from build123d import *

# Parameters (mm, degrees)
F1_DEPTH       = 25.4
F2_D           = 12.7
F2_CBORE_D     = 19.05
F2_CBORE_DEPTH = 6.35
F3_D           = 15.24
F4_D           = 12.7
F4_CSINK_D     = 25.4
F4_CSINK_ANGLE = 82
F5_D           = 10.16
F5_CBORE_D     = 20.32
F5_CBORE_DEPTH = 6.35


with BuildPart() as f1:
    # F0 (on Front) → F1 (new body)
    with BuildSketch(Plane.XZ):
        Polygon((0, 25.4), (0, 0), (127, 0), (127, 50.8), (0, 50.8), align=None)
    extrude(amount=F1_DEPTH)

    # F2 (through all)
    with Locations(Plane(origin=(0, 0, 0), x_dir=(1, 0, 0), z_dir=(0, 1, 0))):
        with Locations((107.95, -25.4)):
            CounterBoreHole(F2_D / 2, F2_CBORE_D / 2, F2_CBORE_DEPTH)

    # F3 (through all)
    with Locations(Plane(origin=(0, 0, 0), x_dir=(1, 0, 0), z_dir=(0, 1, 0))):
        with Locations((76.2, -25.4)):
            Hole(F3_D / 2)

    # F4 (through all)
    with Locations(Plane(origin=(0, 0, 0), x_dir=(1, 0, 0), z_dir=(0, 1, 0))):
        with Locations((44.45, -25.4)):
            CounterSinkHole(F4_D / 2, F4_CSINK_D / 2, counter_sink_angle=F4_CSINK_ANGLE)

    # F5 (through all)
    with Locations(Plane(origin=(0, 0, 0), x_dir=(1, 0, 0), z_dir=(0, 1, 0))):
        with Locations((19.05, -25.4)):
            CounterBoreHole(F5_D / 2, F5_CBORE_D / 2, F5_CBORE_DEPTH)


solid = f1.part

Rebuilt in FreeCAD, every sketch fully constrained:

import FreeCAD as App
import Part
import Sketcher

V = App.Vector
Q = App.Units.Quantity


def add_polygon(sketch, points):
    """Adds a closed chain of lines whose ends are joined by coincident constraints."""
    first, n = sketch.GeometryCount, len(points)
    for a, b in zip(points, points[1:] + points[:1]):
        sketch.addGeometry(Part.LineSegment(App.Vector(*a, 0), App.Vector(*b, 0)), False)
    for i in range(n):
        sketch.addConstraint(Sketcher.Constraint("Coincident", first + i, 2, first + (i + 1) % n, 1))

doc = App.newDocument("Part")
body = doc.addObject("PartDesign::Body", "Body")

# Sketch on XZ plane
sketch1 = body.newObject("Sketcher::SketchObject", "Sketch")
sketch1.AttachmentSupport = (doc.getObject("XZ_Plane"), [""])
sketch1.MapMode = "FlatFace"
add_polygon(sketch1, [(0, 0), (127, 0), (127, 50.8), (0, 50.8)])  # lines 0-3
sketch1.addConstraint([
    Sketcher.Constraint("Horizontal", 0),
    Sketcher.Constraint("Vertical", 1),
    Sketcher.Constraint("Horizontal", 2),
    Sketcher.Constraint("Vertical", 3),
    Sketcher.Constraint("Coincident", 3, 2, -1, 1),
    Sketcher.Constraint("DistanceX", 0, 1, 0, 2, Q("5 in")),
    Sketcher.Constraint("DistanceY", 1, 1, 1, 2, Q("2 in")),
])
pad1 = body.newObject("PartDesign::Pad", "Pad")
pad1.Profile = sketch1
pad1.Length = Q("1 in")

# Sketch on XZ plane
sketch2 = body.newObject("Sketcher::SketchObject", "Sketch001")
sketch2.AttachmentSupport = (doc.getObject("XZ_Plane"), [""])
sketch2.MapMode = "FlatFace"
sketch2.addGeometry(Part.Circle(V(107.95, 25.4, 0), V(0, 0, 1), 6.35), False)
sketch2.addConstraint([
    Sketcher.Constraint("Diameter", 0, Q("0.5 in")),
    Sketcher.Constraint("DistanceY", -1, 1, 0, 3, Q("1 in")),
    Sketcher.Constraint("DistanceX", -1, 1, 0, 3, Q("4.25 in")),
])
doc.recompute()
hole = body.newObject("PartDesign::Hole", "Hole")
hole.Profile = sketch2
hole.ThreadType = "None"
hole.Diameter = Q("0.5 in")
hole.DepthType = "ThroughAll"
hole.HoleCutType = "Counterbore"
hole.HoleCutDiameter = Q("0.75 in")
hole.HoleCutDepth = Q("0.25 in")
hole.Reversed = True

# Sketch on XZ plane
sketch3 = body.newObject("Sketcher::SketchObject", "Sketch002")
sketch3.AttachmentSupport = (doc.getObject("XZ_Plane"), [""])
sketch3.MapMode = "FlatFace"
sketch3.addGeometry(Part.Circle(V(76.2, 25.4, 0), V(0, 0, 1), 7.62), False)
sketch3.addConstraint([
    Sketcher.Constraint("Diameter", 0, Q("0.6 in")),
    Sketcher.Constraint("DistanceX", -1, 1, 0, 3, Q("3 in")),
    Sketcher.Constraint("DistanceY", -1, 1, 0, 3, Q("1 in")),
])
doc.recompute()
hole2 = body.newObject("PartDesign::Hole", "Hole001")
hole2.Profile = sketch3
hole2.ThreadType = "None"
hole2.Diameter = Q("0.6 in")
hole2.DepthType = "ThroughAll"
hole2.Reversed = True

# Sketch on XZ plane
sketch4 = body.newObject("Sketcher::SketchObject", "Sketch003")
sketch4.AttachmentSupport = (doc.getObject("XZ_Plane"), [""])
sketch4.MapMode = "FlatFace"
sketch4.addGeometry(Part.Circle(V(44.45, 25.4, 0), V(0, 0, 1), 6.35), False)
sketch4.addConstraint([
    Sketcher.Constraint("Diameter", 0, Q("0.5 in")),
    Sketcher.Constraint("DistanceY", -1, 1, 0, 3, Q("1 in")),
    Sketcher.Constraint("DistanceX", -1, 1, 0, 3, Q("1.75 in")),
])
doc.recompute()
hole3 = body.newObject("PartDesign::Hole", "Hole002")
hole3.Profile = sketch4
hole3.ThreadType = "None"
hole3.Diameter = Q("0.5 in")
hole3.DepthType = "ThroughAll"
hole3.HoleCutType = "Countersink"
hole3.HoleCutDiameter = Q("1 in")
hole3.HoleCutCountersinkAngle = 82
hole3.Reversed = True

# Sketch on XZ plane
sketch5 = body.newObject("Sketcher::SketchObject", "Sketch004")
sketch5.AttachmentSupport = (doc.getObject("XZ_Plane"), [""])
sketch5.MapMode = "FlatFace"
sketch5.addGeometry(Part.Circle(V(19.05, 25.4, 0), V(0, 0, 1), 5.08), False)
sketch5.addConstraint([
    Sketcher.Constraint("Diameter", 0, Q("0.4 in")),
    Sketcher.Constraint("DistanceY", -1, 1, 0, 3, Q("1 in")),
    Sketcher.Constraint("DistanceX", -1, 1, 0, 3, Q("0.75 in")),
])
doc.recompute()
hole4 = body.newObject("PartDesign::Hole", "Hole003")
hole4.Profile = sketch5
hole4.ThreadType = "None"
hole4.Diameter = Q("0.4 in")
hole4.DepthType = "ThroughAll"
hole4.HoleCutType = "Counterbore"
hole4.HoleCutDiameter = Q("0.8 in")
hole4.HoleCutDepth = Q("0.25 in")
hole4.Reversed = True

doc.recompute()
